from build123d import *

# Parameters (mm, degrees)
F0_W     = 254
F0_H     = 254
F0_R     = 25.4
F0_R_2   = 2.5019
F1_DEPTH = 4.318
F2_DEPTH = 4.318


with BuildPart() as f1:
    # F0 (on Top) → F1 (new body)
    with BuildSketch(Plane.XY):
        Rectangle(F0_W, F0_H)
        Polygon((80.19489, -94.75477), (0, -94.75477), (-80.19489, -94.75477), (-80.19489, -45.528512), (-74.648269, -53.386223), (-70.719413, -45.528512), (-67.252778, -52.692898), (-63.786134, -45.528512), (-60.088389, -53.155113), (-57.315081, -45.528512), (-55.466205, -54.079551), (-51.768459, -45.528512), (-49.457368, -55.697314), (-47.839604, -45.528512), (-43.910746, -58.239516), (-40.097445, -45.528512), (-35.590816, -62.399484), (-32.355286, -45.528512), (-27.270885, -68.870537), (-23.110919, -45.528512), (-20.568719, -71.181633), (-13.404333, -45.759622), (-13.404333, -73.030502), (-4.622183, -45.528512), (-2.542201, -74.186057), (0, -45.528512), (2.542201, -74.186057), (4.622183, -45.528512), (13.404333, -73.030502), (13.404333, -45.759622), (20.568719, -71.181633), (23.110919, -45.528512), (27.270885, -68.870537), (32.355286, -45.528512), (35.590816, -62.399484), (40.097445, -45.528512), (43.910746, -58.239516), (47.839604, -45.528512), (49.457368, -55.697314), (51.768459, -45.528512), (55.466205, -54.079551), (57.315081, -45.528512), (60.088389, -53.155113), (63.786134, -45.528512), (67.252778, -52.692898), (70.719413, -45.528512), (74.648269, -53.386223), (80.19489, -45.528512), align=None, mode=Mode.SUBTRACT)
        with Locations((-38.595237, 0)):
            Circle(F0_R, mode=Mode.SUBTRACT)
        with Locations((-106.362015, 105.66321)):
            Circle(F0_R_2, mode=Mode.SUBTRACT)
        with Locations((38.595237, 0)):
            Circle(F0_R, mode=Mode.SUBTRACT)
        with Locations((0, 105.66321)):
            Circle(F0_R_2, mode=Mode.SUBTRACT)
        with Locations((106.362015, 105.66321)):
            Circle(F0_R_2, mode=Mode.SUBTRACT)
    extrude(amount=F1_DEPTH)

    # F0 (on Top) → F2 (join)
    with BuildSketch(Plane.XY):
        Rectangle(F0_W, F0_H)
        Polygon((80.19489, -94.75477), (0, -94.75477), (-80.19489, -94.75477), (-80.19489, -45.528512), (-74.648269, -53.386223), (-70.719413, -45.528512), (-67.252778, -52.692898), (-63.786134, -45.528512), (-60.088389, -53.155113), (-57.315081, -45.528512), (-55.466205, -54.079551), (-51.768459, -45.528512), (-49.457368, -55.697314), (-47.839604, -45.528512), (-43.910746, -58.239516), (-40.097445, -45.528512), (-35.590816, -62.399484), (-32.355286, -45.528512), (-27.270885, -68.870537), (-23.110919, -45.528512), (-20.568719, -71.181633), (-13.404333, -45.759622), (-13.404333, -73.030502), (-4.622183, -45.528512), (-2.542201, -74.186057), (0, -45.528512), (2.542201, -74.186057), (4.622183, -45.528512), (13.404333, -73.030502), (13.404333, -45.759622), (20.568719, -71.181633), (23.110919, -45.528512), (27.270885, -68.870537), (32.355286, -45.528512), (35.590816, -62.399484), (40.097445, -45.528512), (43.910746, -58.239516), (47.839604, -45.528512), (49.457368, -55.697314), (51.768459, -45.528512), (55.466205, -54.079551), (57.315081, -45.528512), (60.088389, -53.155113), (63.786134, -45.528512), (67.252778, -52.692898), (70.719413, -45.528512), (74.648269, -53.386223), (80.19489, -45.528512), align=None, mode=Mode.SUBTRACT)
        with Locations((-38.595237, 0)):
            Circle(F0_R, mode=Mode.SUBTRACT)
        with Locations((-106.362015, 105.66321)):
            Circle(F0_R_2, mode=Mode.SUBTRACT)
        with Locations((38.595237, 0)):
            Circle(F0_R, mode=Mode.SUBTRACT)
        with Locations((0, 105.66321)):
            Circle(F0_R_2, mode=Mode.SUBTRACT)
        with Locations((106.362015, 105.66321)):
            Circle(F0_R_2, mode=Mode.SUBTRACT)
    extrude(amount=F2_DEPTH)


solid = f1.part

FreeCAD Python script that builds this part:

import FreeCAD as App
import Part
import Sketcher
Q = App.Units.Quantity


def add_polygon(sketch, points):
    """Adds a closed chain of lines whose ends are joined by coincident constraints."""
    first, n = sketch.GeometryCount, len(points)
    for a, b in zip(points, points[1:] + points[:1]):
        sketch.addGeometry(Part.LineSegment(App.Vector(*a, 0), App.Vector(*b, 0)), False)
    for i in range(n):
        sketch.addConstraint(Sketcher.Constraint("Coincident", first + i, 2, first + (i + 1) % n, 1))

doc = App.newDocument("Part")
body = doc.addObject("PartDesign::Body", "Body")

# Sketch on XY plane
sketch1 = body.newObject("Sketcher::SketchObject", "Sketch")
sketch1.AttachmentSupport = (doc.getObject("XY_Plane"), [""])
sketch1.MapMode = "FlatFace"
add_polygon(sketch1, [(-127, 127), (-127, -127), (127, -127), (127, 127)])  # lines 0-3
sketch1.addGeometry(Part.Circle(App.Vector(-38.595237, 0, 0), App.Vector(0, 0, 1), 25.4), False)  # 4
add_polygon(sketch1, [(80.19489, -45.528512), (80.19489, -94.75477), (-80.19489, -94.75477), (-80.19489, -45.528512), (-74.648269, -53.386223), (-70.719413, -45.528512), (-67.252778, -52.692898), (-63.786134, -45.528512), (-60.088389, -53.155113), (-57.315081, -45.528512), (-55.466205, -54.079551), (-51.768459, -45.528512), (-49.457368, -55.697314), (-47.839604, -45.528512), (-43.910746, -58.239516), (-40.097445, -45.528512), (-35.590816, -62.399484), (-32.355286, -45.528512), (-27.270885, -68.870537), (-23.110919, -45.528512), (-20.568719, -71.181633), (-13.404333, -45.759622), (-13.404333, -73.030502), (-4.622183, -45.528512), (-2.542201, -74.186057), (0, -45.528512), (2.542201, -74.186057), (4.622183, -45.528512), (13.404333, -73.030502), (13.404333, -45.759622), (20.568719, -71.181633), (23.110919, -45.528512), (27.270885, -68.870537), (32.355286, -45.528512), (35.590816, -62.399484), (40.097445, -45.528512), (43.910746, -58.239516), (47.839604, -45.528512), (49.457368, -55.697314), (51.768459, -45.528512), (55.466205, -54.079551), (57.315081, -45.528512), (60.088389, -53.155113), (63.786134, -45.528512), (67.252778, -52.692898), (70.719413, -45.528512), (74.648269, -53.386223)])  # lines 5-51
sketch1.addGeometry(Part.Circle(App.Vector(38.595237, 0, 0), App.Vector(0, 0, 1), 25.4), False)  # 52
sketch1.addGeometry(Part.Circle(App.Vector(-106.362015, 105.66321, 0), App.Vector(0, 0, 1), 2.5019), False)  # 53
sketch1.addGeometry(Part.Circle(App.Vector(0, 105.66321, 0), App.Vector(0, 0, 1), 2.5019), False)  # 54
sketch1.addGeometry(Part.Circle(App.Vector(106.362015, 105.66321, 0), App.Vector(0, 0, 1), 2.5019), False)  # 55
sketch1.addConstraint([
    Sketcher.Constraint("Vertical", 0),
    Sketcher.Constraint("Horizontal", 1),
    Sketcher.Constraint("Vertical", 2),
    Sketcher.Constraint("Horizontal", 3),
    Sketcher.Constraint("Vertical", 5),
    Sketcher.Constraint("Horizontal", 6),
    Sketcher.Constraint("Vertical", 7),
    Sketcher.Constraint("Vertical", 26),
    Sketcher.Constraint("Vertical", 33),
    Sketcher.Constraint("Equal", 4, 52),
    Sketcher.Constraint("Equal", 53, 54),
    Sketcher.Constraint("Equal", 54, 55),
    Sketcher.Constraint("Symmetric", 4, 3, 52, 3, -1, 1),
    Sketcher.Constraint("Symmetric", 0, 2, 2, 2, -1, 1),
    Sketcher.Constraint("Symmetric", 53, 3, 55, 3, -2),
    Sketcher.Constraint("Symmetric", 28, 2, 30, 2, -2),
    Sketcher.Constraint("Symmetric", 27, 2, 31, 2, -2),
    Sketcher.Constraint("Symmetric", 26, 2, 32, 2, -2),
    Sketcher.Constraint("Symmetric", 24, 2, 34, 2, -2),
    Sketcher.Constraint("Symmetric", 23, 2, 35, 2, -2),
    Sketcher.Constraint("Symmetric", 22, 2, 36, 2, -2),
    Sketcher.Constraint("Symmetric", 21, 2, 37, 2, -2),
    Sketcher.Constraint("Symmetric", 20, 2, 38, 2, -2),
    Sketcher.Constraint("Symmetric", 19, 2, 39, 2, -2),
    Sketcher.Constraint("Symmetric", 18, 2, 40, 2, -2),
    Sketcher.Constraint("Symmetric", 17, 2, 41, 2, -2),
    Sketcher.Constraint("Symmetric", 16, 2, 42, 2, -2),
    Sketcher.Constraint("Symmetric", 15, 2, 43, 2, -2),
    Sketcher.Constraint("Symmetric", 14, 2, 44, 2, -2),
    Sketcher.Constraint("Symmetric", 13, 2, 45, 2, -2),
    Sketcher.Constraint("Symmetric", 12, 2, 46, 2, -2),
    Sketcher.Constraint("Symmetric", 11, 2, 47, 2, -2),
    Sketcher.Constraint("Symmetric", 10, 2, 48, 2, -2),
    Sketcher.Constraint("Symmetric", 9, 2, 49, 2, -2),
    Sketcher.Constraint("Symmetric", 8, 2, 50, 2, -2),
    Sketcher.Constraint("Symmetric", 7, 2, 51, 2, -2),
    Sketcher.Constraint("PointOnObject", 4, 3, -1),
    Sketcher.Constraint("PointOnObject", 54, 3, -2),
    Sketcher.Constraint("PointOnObject", 29, 2, -2),
    Sketcher.Constraint("Parallel", 10, 48),
    Sketcher.Constraint("Horizontal", 53, 3, 54, 3),
    Sketcher.Constraint("Horizontal", 7, 2, 9, 2),
    Sketcher.Constraint("Horizontal", 9, 2, 11, 2),
    Sketcher.Constraint("Horizontal", 11, 2, 13, 2),
    Sketcher.Constraint("Horizontal", 13, 2, 15, 2),
    Sketcher.Constraint("Horizontal", 15, 2, 17, 2),
    Sketcher.Constraint("Horizontal", 17, 2, 19, 2),
    Sketcher.Constraint("Horizontal", 19, 2, 21, 2),
    Sketcher.Constraint("Horizontal", 21, 2, 23, 2),
    Sketcher.Constraint("Horizontal", 23, 2, 27, 2),
    Sketcher.Constraint("Horizontal", 27, 2, 29, 2),
    Sketcher.Constraint("Horizontal", 25, 2, 33, 2),
    Sketcher.Constraint("Equal", 3, 0),
    Sketcher.Constraint("Diameter", 4, Q("2 in")),
    Sketcher.Constraint("DistanceX", 1, 1, 1, 2, Q("10 in")),
    Sketcher.Constraint("Diameter", 53, Q("0.197 in")),
    Sketcher.Constraint("DistanceX", 6, 2, 6, 1, 160.38978),
    Sketcher.Constraint("DistanceY", 26, 2, 26, 1, 27.27088),
    Sketcher.Constraint("DistanceY", 26, 2, -1, 1, 73.030502),
    Sketcher.Constraint("DistanceX", 28, 2, -1, 1, 2.542201),
    Sketcher.Constraint("DistanceY", 12, 2, 11, 2, 7.626601),
    Sketcher.Constraint("DistanceX", 7, 2, 12, 2, 20.106501),
    Sketcher.Constraint("DistanceY", 16, 2, 12, 2, 2.542201),
    Sketcher.Constraint("DistanceX", 14, 2, 17, 2, 7.626601),
    Sketcher.Constraint("DistanceX", 18, 2, 19, 2, 3.813301),
    Sketcher.Constraint("DistanceX", 21, 2, 22, 2, 5.084401),
    Sketcher.Constraint("DistanceX", 23, 2, 24, 2, 2.5422),
    Sketcher.Constraint("DistanceX", 23, 2, 31, 2, 27.733102),
    Sketcher.Constraint("Distance", 8, 9.61814),
    Sketcher.Constraint("Distance", 9, 8.785188),
    Sketcher.Constraint("Distance", 10, 7.959019),
    Sketcher.Constraint("Distance", 12, 8.475751),
    Sketcher.Constraint("Distance", 13, 8.115188),
    Sketcher.Constraint("Distance", 16, 10.428119),
    Sketcher.Constraint("Distance", 24, 25.778778),
    Sketcher.Constraint("Distance", 27, 28.870151),
    Sketcher.Constraint("Distance", 28, 28.732929),
    Sketcher.Constraint("DistanceY", 5, 2, 5, 1, 49.226258),
    Sketcher.Constraint("DistanceY", -1, 1, 53, 3, 105.66321),
    Sketcher.Constraint("DistanceY", 5, 2, -1, 1, 94.75477),
    Sketcher.Constraint("DistanceX", 8, 2, -1, 1, 74.648269),
    Sketcher.Constraint("DistanceY", 14, 2, -1, 1, 54.079551),
    Sketcher.Constraint("DistanceX", 15, 2, -1, 1, 51.768459),
    Sketcher.Constraint("DistanceX", 23, 2, -1, 1, 23.110919),
    Sketcher.Constraint("DistanceX", 53, 3, 4, 3, 67.766778),
    Sketcher.Constraint("DistanceX", 53, 3, 52, 3, 144.957252),
    Sketcher.Constraint("DistanceX", 11, 2, 14, 2, 8.319929),
    Sketcher.Constraint("DistanceX", 16, 2, 18, 2, 5.546622),
    Sketcher.Constraint("DistanceX", 18, 2, 20, 2, 8.31993),
    Sketcher.Constraint("DistanceY", 20, 2, 16, 2, 6.70217),
    Sketcher.Constraint("DistanceX", 19, 2, 21, 2, 7.742159),
    Sketcher.Constraint("DistanceY", 22, 2, 18, 2, 10.631021),
    Sketcher.Constraint("DistanceY", 28, 2, 22, 2, 5.31552),
])
pad1 = body.newObject("PartDesign::Pad", "Pad")
pad1.Profile = sketch1
pad1.Length = Q("0.17 in")

# Sketch on XY plane
sketch2 = body.newObject("Sketcher::SketchObject", "Sketch001")
sketch2.AttachmentSupport = (doc.getObject("XY_Plane"), [""])
sketch2.MapMode = "FlatFace"
add_polygon(sketch2, [(-127, 127), (-127, -127), (127, -127), (127, 127)])  # lines 0-3
sketch2.addGeometry(Part.Circle(App.Vector(-38.595237, 0, 0), App.Vector(0, 0, 1), 25.4), False)  # 4
add_polygon(sketch2, [(80.19489, -45.528512), (80.19489, -94.75477), (-80.19489, -94.75477), (-80.19489, -45.528512), (-74.648269, -53.386223), (-70.719413, -45.528512), (-67.252778, -52.692898), (-63.786134, -45.528512), (-60.088389, -53.155113), (-57.315081, -45.528512), (-55.466205, -54.079551), (-51.768459, -45.528512), (-49.457368, -55.697314), (-47.839604, -45.528512), (-43.910746, -58.239516), (-40.097445, -45.528512), (-35.590816, -62.399484), (-32.355286, -45.528512), (-27.270885, -68.870537), (-23.110919, -45.528512), (-20.568719, -71.181633), (-13.404333, -45.759622), (-13.404333, -73.030502), (-4.622183, -45.528512), (-2.542201, -74.186057), (0, -45.528512), (2.542201, -74.186057), (4.622183, -45.528512), (13.404333, -73.030502), (13.404333, -45.759622), (20.568719, -71.181633), (23.110919, -45.528512), (27.270885, -68.870537), (32.355286, -45.528512), (35.590816, -62.399484), (40.097445, -45.528512), (43.910746, -58.239516), (47.839604, -45.528512), (49.457368, -55.697314), (51.768459, -45.528512), (55.466205, -54.079551), (57.315081, -45.528512), (60.088389, -53.155113), (63.786134, -45.528512), (67.252778, -52.692898), (70.719413, -45.528512), (74.648269, -53.386223)])  # lines 5-51
sketch2.addGeometry(Part.Circle(App.Vector(38.595237, 0, 0), App.Vector(0, 0, 1), 25.4), False)  # 52
sketch2.addGeometry(Part.Circle(App.Vector(-106.362015, 105.66321, 0), App.Vector(0, 0, 1), 2.5019), False)  # 53
sketch2.addGeometry(Part.Circle(App.Vector(0, 105.66321, 0), App.Vector(0, 0, 1), 2.5019), False)  # 54
sketch2.addGeometry(Part.Circle(App.Vector(106.362015, 105.66321, 0), App.Vector(0, 0, 1), 2.5019), False)  # 55
sketch2.addConstraint([
    Sketcher.Constraint("Vertical", 0),
    Sketcher.Constraint("Horizontal", 1),
    Sketcher.Constraint("Vertical", 2),
    Sketcher.Constraint("Horizontal", 3),
    Sketcher.Constraint("Vertical", 5),
    Sketcher.Constraint("Horizontal", 6),
    Sketcher.Constraint("Vertical", 7),
    Sketcher.Constraint("Vertical", 26),
    Sketcher.Constraint("Vertical", 33),
    Sketcher.Constraint("Equal", 4, 52),
    Sketcher.Constraint("Equal", 53, 54),
    Sketcher.Constraint("Equal", 54, 55),
    Sketcher.Constraint("Symmetric", 4, 3, 52, 3, -1, 1),
    Sketcher.Constraint("Symmetric", 0, 2, 2, 2, -1, 1),
    Sketcher.Constraint("Symmetric", 53, 3, 55, 3, -2),
    Sketcher.Constraint("Symmetric", 28, 2, 30, 2, -2),
    Sketcher.Constraint("Symmetric", 27, 2, 31, 2, -2),
    Sketcher.Constraint("Symmetric", 26, 2, 32, 2, -2),
    Sketcher.Constraint("Symmetric", 24, 2, 34, 2, -2),
    Sketcher.Constraint("Symmetric", 23, 2, 35, 2, -2),
    Sketcher.Constraint("Symmetric", 22, 2, 36, 2, -2),
    Sketcher.Constraint("Symmetric", 21, 2, 37, 2, -2),
    Sketcher.Constraint("Symmetric", 20, 2, 38, 2, -2),
    Sketcher.Constraint("Symmetric", 19, 2, 39, 2, -2),
    Sketcher.Constraint("Symmetric", 18, 2, 40, 2, -2),
    Sketcher.Constraint("Symmetric", 17, 2, 41, 2, -2),
    Sketcher.Constraint("Symmetric", 16, 2, 42, 2, -2),
    Sketcher.Constraint("Symmetric", 15, 2, 43, 2, -2),
    Sketcher.Constraint("Symmetric", 14, 2, 44, 2, -2),
    Sketcher.Constraint("Symmetric", 13, 2, 45, 2, -2),
    Sketcher.Constraint("Symmetric", 12, 2, 46, 2, -2),
    Sketcher.Constraint("Symmetric", 11, 2, 47, 2, -2),
    Sketcher.Constraint("Symmetric", 10, 2, 48, 2, -2),
    Sketcher.Constraint("Symmetric", 9, 2, 49, 2, -2),
    Sketcher.Constraint("Symmetric", 8, 2, 50, 2, -2),
    Sketcher.Constraint("Symmetric", 7, 2, 51, 2, -2),
    Sketcher.Constraint("PointOnObject", 4, 3, -1),
    Sketcher.Constraint("PointOnObject", 54, 3, -2),
    Sketcher.Constraint("PointOnObject", 29, 2, -2),
    Sketcher.Constraint("Parallel", 10, 48),
    Sketcher.Constraint("Horizontal", 53, 3, 54, 3),
    Sketcher.Constraint("Horizontal", 7, 2, 9, 2),
    Sketcher.Constraint("Horizontal", 9, 2, 11, 2),
    Sketcher.Constraint("Horizontal", 11, 2, 13, 2),
    Sketcher.Constraint("Horizontal", 13, 2, 15, 2),
    Sketcher.Constraint("Horizontal", 15, 2, 17, 2),
    Sketcher.Constraint("Horizontal", 17, 2, 19, 2),
    Sketcher.Constraint("Horizontal", 19, 2, 21, 2),
    Sketcher.Constraint("Horizontal", 21, 2, 23, 2),
    Sketcher.Constraint("Horizontal", 23, 2, 27, 2),
    Sketcher.Constraint("Horizontal", 27, 2, 29, 2),
    Sketcher.Constraint("Horizontal", 25, 2, 33, 2),
    Sketcher.Constraint("Equal", 3, 0),
    Sketcher.Constraint("Diameter", 4, Q("2 in")),
    Sketcher.Constraint("DistanceX", 1, 1, 1, 2, Q("10 in")),
    Sketcher.Constraint("Diameter", 53, Q("0.197 in")),
    Sketcher.Constraint("DistanceX", 6, 2, 6, 1, 160.38978),
    Sketcher.Constraint("DistanceY", 26, 2, 26, 1, 27.27088),
    Sketcher.Constraint("DistanceY", 26, 2, -1, 1, 73.030502),
    Sketcher.Constraint("DistanceX", 28, 2, -1, 1, 2.542201),
    Sketcher.Constraint("DistanceY", 12, 2, 11, 2, 7.626601),
    Sketcher.Constraint("DistanceX", 7, 2, 12, 2, 20.106501),
    Sketcher.Constraint("DistanceY", 16, 2, 12, 2, 2.542201),
    Sketcher.Constraint("DistanceX", 14, 2, 17, 2, 7.626601),
    Sketcher.Constraint("DistanceX", 18, 2, 19, 2, 3.813301),
    Sketcher.Constraint("DistanceX", 21, 2, 22, 2, 5.084401),
    Sketcher.Constraint("DistanceX", 23, 2, 24, 2, 2.5422),
    Sketcher.Constraint("DistanceX", 23, 2, 31, 2, 27.733102),
    Sketcher.Constraint("Distance", 8, 9.61814),
    Sketcher.Constraint("Distance", 9, 8.785188),
    Sketcher.Constraint("Distance", 10, 7.959019),
    Sketcher.Constraint("Distance", 12, 8.475751),
    Sketcher.Constraint("Distance", 13, 8.115188),
    Sketcher.Constraint("Distance", 16, 10.428119),
    Sketcher.Constraint("Distance", 24, 25.778778),
    Sketcher.Constraint("Distance", 27, 28.870151),
    Sketcher.Constraint("Distance", 28, 28.732929),
    Sketcher.Constraint("DistanceY", 5, 2, 5, 1, 49.226258),
    Sketcher.Constraint("DistanceY", -1, 1, 53, 3, 105.66321),
    Sketcher.Constraint("DistanceY", 5, 2, -1, 1, 94.75477),
    Sketcher.Constraint("DistanceX", 8, 2, -1, 1, 74.648269),
    Sketcher.Constraint("DistanceY", 14, 2, -1, 1, 54.079551),
    Sketcher.Constraint("DistanceX", 15, 2, -1, 1, 51.768459),
    Sketcher.Constraint("DistanceX", 23, 2, -1, 1, 23.110919),
    Sketcher.Constraint("DistanceX", 53, 3, 4, 3, 67.766778),
    Sketcher.Constraint("DistanceX", 53, 3, 52, 3, 144.957252),
    Sketcher.Constraint("DistanceX", 11, 2, 14, 2, 8.319929),
    Sketcher.Constraint("DistanceX", 16, 2, 18, 2, 5.546622),
    Sketcher.Constraint("DistanceX", 18, 2, 20, 2, 8.31993),
    Sketcher.Constraint("DistanceY", 20, 2, 16, 2, 6.70217),
    Sketcher.Constraint("DistanceX", 19, 2, 21, 2, 7.742159),
    Sketcher.Constraint("DistanceY", 22, 2, 18, 2, 10.631021),
    Sketcher.Constraint("DistanceY", 28, 2, 22, 2, 5.31552),
])
pad2 = body.newObject("PartDesign::Pad", "Pad001")
pad2.Profile = sketch2
pad2.Length = Q("0.17 in")

doc.recompute()
